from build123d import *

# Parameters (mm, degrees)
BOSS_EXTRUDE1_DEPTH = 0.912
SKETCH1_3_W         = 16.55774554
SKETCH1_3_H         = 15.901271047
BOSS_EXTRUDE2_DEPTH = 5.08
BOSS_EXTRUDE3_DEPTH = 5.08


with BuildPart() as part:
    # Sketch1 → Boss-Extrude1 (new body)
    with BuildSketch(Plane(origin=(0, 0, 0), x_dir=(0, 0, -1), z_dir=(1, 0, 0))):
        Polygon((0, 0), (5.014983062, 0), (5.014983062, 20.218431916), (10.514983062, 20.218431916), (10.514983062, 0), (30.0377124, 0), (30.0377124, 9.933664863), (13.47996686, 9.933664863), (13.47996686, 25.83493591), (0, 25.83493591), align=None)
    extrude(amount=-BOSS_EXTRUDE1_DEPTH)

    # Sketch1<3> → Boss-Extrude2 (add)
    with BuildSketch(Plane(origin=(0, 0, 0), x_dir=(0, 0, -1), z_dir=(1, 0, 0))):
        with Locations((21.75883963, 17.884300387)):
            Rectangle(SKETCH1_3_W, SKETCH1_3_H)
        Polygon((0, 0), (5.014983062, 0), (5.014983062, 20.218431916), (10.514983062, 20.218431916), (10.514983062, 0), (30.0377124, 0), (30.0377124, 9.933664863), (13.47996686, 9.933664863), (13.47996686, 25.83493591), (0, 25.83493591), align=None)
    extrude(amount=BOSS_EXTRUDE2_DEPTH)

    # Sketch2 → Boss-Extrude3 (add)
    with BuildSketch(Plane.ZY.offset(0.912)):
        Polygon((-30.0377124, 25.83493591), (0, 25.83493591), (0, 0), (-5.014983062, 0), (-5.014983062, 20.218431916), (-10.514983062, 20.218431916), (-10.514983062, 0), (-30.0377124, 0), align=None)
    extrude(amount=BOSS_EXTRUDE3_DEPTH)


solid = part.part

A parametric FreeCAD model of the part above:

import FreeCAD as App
import Part
import Sketcher
from FreeCAD import Vector


def add_polygon(sketch, points):
    """Adds a closed chain of lines whose ends are joined by coincident constraints."""
    first, n = sketch.GeometryCount, len(points)
    for a, b in zip(points, points[1:] + points[:1]):
        sketch.addGeometry(Part.LineSegment(App.Vector(*a, 0), App.Vector(*b, 0)), False)
    for i in range(n):
        sketch.addConstraint(Sketcher.Constraint("Coincident", first + i, 2, first + (i + 1) % n, 1))

doc = App.newDocument("Part")
body = doc.addObject("PartDesign::Body", "Body")

sketch1 = body.newObject("Sketcher::SketchObject", "Sketch")
sketch1.AttachmentSupport = (doc.getObject("YZ_Plane"), [""])
sketch1.MapMode = "FlatFace"
add_polygon(sketch1, [(0, 0), (0, -5), (20, -5), (20, -11), (0, -11), (0, -30), (10, -30), (10, -13), (26, -13), (26, 0)])
sketch1.addConstraint([
    Sketcher.Constraint("Vertical", 0),
    Sketcher.Constraint("Horizontal", 1),
    Sketcher.Constraint("Vertical", 2),
    Sketcher.Constraint("Horizontal", 3),
    Sketcher.Constraint("Vertical", 4),
    Sketcher.Constraint("Horizontal", 5),
    Sketcher.Constraint("Vertical", 6),
    Sketcher.Constraint("Horizontal", 7),
    Sketcher.Constraint("Vertical", 8),
    Sketcher.Constraint("Horizontal", 9),
    Sketcher.Constraint("Coincident", 9, 2, -1, 1),
    Sketcher.Constraint("PointOnObject", 3, 2, -2),
    Sketcher.Constraint("DistanceY", 2, 2, 2, 1, 5.5),
    Sketcher.Constraint("DistanceX", 1, 1, 1, 2, 20.218432),
    Sketcher.Constraint("DistanceX", 7, 1, 7, 2, 15.901271),
    Sketcher.Constraint("DistanceY", 4, 2, 4, 1, 19.522729),
    Sketcher.Constraint("DistanceX", 5, 1, 5, 2, 9.933665),
    Sketcher.Constraint("DistanceY", 0, 2, 0, 1, 5.014983),
    Sketcher.Constraint("DistanceY", 6, 1, 6, 2, 16.557746),
])
pad1 = body.newObject("PartDesign::Pad", "Pad")
pad1.Profile = sketch1
pad1.Length = 0.912
pad1.Reversed = True

sketch2 = body.newObject("Sketcher::SketchObject", "Sketch001")
sketch2.AttachmentSupport = (doc.getObject("YZ_Plane"), [""])
sketch2.MapMode = "FlatFace"
add_polygon(sketch2, [(26, -30), (26, -13), (26, 0), (0, 0), (0, -5), (20, -5), (20, -11), (0, -11), (0, -30)])
sketch2.addConstraint([
    Sketcher.Constraint("Vertical", 0),
    Sketcher.Constraint("Vertical", 1),
    Sketcher.Constraint("Horizontal", 2),
    Sketcher.Constraint("Vertical", 3),
    Sketcher.Constraint("Horizontal", 4),
    Sketcher.Constraint("Vertical", 5),
    Sketcher.Constraint("Horizontal", 6),
    Sketcher.Constraint("Vertical", 7),
    Sketcher.Constraint("Horizontal", 8),
    Sketcher.Constraint("Coincident", 2, 2, -1, 1),
    Sketcher.Constraint("PointOnObject", 6, 2, -2),
    Sketcher.Constraint("DistanceY", 5, 2, 5, 1, 5.5),
    Sketcher.Constraint("DistanceX", 4, 1, 4, 2, 20.218432),
    Sketcher.Constraint("DistanceY", 7, 2, 7, 1, 19.522729),
    Sketcher.Constraint("DistanceX", 2, 2, 2, 1, 25.834936),
    Sketcher.Constraint("DistanceY", 0, 1, 0, 2, 16.557746),
    Sketcher.Constraint("DistanceY", 1, 1, 1, 2, 13.479967),
])
pad2 = body.newObject("PartDesign::Pad", "Pad001")
pad2.Profile = sketch2
pad2.Length = 5.08

sketch3 = body.newObject("Sketcher::SketchObject", "Sketch002")
sketch3.AttachmentSupport = (doc.getObject("YZ_Plane"), [""])
sketch3.MapMode = "FlatFace"
sketch3.AttachmentOffset = App.Placement(Vector(0, 0, -0.912), App.Rotation())
add_polygon(sketch3, [(26, 0), (26, -30), (0, -30), (0, -11), (20, -11), (20, -5), (0, -5), (0, 0)])
sketch3.addConstraint([
    Sketcher.Constraint("Vertical", 0),
    Sketcher.Constraint("Horizontal", 1),
    Sketcher.Constraint("Vertical", 2),
    Sketcher.Constraint("Horizontal", 3),
    Sketcher.Constraint("Vertical", 4),
    Sketcher.Constraint("Horizontal", 5),
    Sketcher.Constraint("Vertical", 6),
    Sketcher.Constraint("Horizontal", 7),
    Sketcher.Constraint("Coincident", 6, 2, -1, 1),
    Sketcher.Constraint("PointOnObject", 1, 2, -2),
    Sketcher.Constraint("DistanceY", 4, 1, 4, 2, 5.5),
    Sketcher.Constraint("DistanceX", 3, 1, 3, 2, 20.218432),
    Sketcher.Constraint("DistanceY", 2, 1, 2, 2, 19.522729),
    Sketcher.Constraint("DistanceX", 1, 2, 1, 1, 25.834936),
    Sketcher.Constraint("DistanceY", 0, 2, 0, 1, 30.037712),
])
pad3 = body.newObject("PartDesign::Pad", "Pad002")
pad3.Profile = sketch3
pad3.Length = 5.08
pad3.Reversed = True

doc.recompute()
